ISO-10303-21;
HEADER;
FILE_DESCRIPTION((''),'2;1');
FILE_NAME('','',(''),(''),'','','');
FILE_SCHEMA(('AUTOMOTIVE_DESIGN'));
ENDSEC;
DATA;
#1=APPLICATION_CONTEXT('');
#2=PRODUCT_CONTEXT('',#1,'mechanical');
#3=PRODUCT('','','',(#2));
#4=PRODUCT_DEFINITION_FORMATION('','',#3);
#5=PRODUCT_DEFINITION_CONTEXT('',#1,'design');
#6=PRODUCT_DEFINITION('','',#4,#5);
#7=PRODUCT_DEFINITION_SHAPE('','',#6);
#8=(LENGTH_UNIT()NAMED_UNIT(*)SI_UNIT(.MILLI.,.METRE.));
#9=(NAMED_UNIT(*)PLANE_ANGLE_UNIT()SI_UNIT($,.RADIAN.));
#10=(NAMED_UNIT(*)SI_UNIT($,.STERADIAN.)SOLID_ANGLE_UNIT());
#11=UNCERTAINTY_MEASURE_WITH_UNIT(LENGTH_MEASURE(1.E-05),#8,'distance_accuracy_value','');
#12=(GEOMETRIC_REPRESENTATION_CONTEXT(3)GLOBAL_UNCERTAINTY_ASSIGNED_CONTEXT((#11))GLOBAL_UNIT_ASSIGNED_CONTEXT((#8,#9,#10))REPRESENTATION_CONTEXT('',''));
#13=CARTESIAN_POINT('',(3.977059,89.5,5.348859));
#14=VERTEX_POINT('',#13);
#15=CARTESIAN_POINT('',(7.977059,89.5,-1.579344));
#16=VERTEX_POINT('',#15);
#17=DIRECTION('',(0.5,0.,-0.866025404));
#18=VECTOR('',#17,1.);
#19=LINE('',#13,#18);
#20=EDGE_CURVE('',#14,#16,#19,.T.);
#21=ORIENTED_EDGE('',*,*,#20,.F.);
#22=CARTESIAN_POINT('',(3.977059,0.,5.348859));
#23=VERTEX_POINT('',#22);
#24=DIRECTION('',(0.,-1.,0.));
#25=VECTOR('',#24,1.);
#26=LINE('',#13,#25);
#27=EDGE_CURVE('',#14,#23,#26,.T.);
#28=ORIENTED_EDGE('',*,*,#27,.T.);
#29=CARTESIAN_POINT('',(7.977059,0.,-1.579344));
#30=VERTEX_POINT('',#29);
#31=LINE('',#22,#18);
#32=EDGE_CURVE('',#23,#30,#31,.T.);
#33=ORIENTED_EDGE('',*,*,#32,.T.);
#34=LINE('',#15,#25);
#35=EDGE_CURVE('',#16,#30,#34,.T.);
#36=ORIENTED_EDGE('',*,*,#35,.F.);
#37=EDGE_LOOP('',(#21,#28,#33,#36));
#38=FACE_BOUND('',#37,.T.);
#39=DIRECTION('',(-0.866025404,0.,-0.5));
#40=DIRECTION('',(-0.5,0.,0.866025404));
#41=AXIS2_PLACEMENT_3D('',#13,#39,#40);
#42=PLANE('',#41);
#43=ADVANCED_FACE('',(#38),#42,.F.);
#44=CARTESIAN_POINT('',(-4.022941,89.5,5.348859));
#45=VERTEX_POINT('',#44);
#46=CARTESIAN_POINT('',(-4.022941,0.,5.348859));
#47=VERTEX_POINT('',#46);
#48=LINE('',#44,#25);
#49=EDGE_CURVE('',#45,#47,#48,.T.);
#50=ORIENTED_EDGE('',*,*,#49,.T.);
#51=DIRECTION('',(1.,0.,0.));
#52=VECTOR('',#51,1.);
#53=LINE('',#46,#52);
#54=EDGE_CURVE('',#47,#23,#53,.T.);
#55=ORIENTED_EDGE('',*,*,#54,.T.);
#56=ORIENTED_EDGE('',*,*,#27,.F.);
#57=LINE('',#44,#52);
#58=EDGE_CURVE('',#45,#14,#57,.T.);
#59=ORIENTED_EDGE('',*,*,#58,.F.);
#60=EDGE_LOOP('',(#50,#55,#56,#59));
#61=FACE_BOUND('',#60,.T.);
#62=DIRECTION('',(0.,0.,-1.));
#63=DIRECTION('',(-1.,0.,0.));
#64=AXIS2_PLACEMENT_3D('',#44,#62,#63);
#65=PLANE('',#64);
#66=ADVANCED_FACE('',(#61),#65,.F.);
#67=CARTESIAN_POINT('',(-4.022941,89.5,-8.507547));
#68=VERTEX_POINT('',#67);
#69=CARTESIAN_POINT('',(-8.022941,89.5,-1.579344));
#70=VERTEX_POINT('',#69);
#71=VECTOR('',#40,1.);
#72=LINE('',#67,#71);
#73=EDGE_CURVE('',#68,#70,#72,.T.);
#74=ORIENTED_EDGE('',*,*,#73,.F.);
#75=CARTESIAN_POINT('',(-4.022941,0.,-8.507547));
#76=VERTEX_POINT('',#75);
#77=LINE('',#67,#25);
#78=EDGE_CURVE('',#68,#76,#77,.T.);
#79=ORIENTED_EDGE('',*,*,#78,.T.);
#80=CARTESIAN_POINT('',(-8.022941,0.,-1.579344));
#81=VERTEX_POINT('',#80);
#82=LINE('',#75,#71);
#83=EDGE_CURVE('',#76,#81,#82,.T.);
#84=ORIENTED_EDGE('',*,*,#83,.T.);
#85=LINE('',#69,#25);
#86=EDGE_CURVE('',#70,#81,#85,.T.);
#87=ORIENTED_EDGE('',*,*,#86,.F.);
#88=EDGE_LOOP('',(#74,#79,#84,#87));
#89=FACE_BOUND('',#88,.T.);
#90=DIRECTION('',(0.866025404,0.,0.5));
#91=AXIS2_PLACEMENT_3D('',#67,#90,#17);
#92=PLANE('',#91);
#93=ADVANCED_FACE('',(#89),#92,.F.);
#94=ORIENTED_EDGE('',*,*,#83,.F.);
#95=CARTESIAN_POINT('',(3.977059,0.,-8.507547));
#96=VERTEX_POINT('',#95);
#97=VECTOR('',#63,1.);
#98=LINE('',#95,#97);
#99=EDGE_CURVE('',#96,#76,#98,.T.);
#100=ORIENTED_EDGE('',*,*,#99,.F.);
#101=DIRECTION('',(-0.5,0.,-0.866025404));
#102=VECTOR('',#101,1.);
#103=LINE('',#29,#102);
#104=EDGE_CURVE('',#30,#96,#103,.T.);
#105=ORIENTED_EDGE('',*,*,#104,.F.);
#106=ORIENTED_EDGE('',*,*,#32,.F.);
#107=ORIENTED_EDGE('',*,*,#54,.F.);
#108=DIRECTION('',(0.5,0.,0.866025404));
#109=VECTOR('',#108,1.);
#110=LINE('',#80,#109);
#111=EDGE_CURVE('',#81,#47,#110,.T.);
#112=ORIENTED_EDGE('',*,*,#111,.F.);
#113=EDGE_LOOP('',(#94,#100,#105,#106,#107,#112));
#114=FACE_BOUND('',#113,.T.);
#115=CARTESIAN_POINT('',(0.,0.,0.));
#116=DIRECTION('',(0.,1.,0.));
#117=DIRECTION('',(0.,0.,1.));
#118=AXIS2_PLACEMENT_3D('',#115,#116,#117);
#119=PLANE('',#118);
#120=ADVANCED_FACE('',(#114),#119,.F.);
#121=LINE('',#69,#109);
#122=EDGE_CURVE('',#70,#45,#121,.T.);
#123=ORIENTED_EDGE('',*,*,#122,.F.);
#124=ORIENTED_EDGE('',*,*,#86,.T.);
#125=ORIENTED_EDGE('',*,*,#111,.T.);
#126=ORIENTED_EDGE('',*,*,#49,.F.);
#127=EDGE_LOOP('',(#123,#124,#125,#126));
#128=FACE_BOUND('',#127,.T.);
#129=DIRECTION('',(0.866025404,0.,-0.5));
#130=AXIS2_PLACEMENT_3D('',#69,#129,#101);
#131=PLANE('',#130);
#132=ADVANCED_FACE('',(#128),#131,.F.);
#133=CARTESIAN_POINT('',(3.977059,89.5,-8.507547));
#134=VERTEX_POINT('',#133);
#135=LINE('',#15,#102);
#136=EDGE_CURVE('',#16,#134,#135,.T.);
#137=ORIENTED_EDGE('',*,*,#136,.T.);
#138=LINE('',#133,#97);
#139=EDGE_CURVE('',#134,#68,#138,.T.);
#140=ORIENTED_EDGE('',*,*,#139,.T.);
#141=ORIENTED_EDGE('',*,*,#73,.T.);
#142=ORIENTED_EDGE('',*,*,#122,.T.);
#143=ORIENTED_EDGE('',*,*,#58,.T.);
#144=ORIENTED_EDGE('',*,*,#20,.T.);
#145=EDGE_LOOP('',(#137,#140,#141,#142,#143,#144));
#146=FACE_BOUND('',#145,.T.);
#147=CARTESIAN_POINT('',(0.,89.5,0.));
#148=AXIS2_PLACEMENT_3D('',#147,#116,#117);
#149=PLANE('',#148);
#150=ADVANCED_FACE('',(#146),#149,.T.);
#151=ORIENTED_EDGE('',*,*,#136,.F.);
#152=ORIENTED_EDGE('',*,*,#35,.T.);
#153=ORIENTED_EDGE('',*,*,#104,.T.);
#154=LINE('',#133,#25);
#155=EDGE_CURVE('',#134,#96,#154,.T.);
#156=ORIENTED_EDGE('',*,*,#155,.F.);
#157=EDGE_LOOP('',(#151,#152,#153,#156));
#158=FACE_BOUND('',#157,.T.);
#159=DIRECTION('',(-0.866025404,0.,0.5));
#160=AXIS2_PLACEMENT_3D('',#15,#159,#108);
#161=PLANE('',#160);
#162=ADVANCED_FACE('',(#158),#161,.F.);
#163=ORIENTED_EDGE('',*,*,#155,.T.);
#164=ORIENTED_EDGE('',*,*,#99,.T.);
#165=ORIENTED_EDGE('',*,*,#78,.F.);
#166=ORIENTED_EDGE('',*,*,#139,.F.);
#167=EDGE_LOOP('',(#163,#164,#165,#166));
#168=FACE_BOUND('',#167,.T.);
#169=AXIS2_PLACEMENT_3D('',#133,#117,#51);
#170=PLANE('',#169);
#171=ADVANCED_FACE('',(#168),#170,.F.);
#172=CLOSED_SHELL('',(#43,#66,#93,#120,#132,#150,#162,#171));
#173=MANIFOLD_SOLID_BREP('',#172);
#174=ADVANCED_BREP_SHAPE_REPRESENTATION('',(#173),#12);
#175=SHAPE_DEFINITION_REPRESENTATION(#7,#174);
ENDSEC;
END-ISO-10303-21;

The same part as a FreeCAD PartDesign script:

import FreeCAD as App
import Part
import Sketcher
Q = App.Units.Quantity


def add_polygon(sketch, points):
    """Adds a closed chain of lines whose ends are joined by coincident constraints."""
    first, n = sketch.GeometryCount, len(points)
    for a, b in zip(points, points[1:] + points[:1]):
        sketch.addGeometry(Part.LineSegment(App.Vector(*a, 0), App.Vector(*b, 0)), False)
    for i in range(n):
        sketch.addConstraint(Sketcher.Constraint("Coincident", first + i, 2, first + (i + 1) % n, 1))

doc = App.newDocument("Part")
body = doc.addObject("PartDesign::Body", "Body")

# Sketch on XZ plane
sketch1 = doc.addObject("Sketcher::SketchObject", "Sketch")
body.addObject(sketch1)
sketch1.AttachmentSupport = (doc.XZ_Plane, [""])
sketch1.MapMode = "FlatFace"
add_polygon(sketch1, [(7.977059, -1.579344), (3.977059, -8.507547), (-4.022941, -8.507547), (-8.022941, -1.579344), (-4.022941, 5.348859), (3.977059, 5.348859)])  # lines 0-5
sketch1.addConstraint([
    Sketcher.Constraint("Horizontal", 1),
    Sketcher.Constraint("Horizontal", 4),
    Sketcher.Constraint("Parallel", 0, 3),
    Sketcher.Constraint("Parallel", 2, 5),
    Sketcher.Constraint("Horizontal", 2, 2, 5, 2),
    Sketcher.Constraint("Vertical", 1, 2, 3, 2),
    Sketcher.Constraint("Vertical", 0, 2, 4, 2),
    Sketcher.Constraint("DistanceX", 1, 2, 1, 1, 8.0),
    Sketcher.Constraint("Angle", 0, Q("-120 deg")),
    Sketcher.Constraint("Distance", 0, 8.0),
    Sketcher.Constraint("DistanceX", -1, 1, 0, 2, 3.977059),
    Sketcher.Constraint("DistanceY", -1, 1, 3, 2, 5.348859),
])
pad1 = doc.addObject("PartDesign::Pad", "Pad")
body.addObject(pad1)
pad1.Profile = sketch1
pad1.Length = 89.5
pad1.Reversed = True

doc.recompute()
